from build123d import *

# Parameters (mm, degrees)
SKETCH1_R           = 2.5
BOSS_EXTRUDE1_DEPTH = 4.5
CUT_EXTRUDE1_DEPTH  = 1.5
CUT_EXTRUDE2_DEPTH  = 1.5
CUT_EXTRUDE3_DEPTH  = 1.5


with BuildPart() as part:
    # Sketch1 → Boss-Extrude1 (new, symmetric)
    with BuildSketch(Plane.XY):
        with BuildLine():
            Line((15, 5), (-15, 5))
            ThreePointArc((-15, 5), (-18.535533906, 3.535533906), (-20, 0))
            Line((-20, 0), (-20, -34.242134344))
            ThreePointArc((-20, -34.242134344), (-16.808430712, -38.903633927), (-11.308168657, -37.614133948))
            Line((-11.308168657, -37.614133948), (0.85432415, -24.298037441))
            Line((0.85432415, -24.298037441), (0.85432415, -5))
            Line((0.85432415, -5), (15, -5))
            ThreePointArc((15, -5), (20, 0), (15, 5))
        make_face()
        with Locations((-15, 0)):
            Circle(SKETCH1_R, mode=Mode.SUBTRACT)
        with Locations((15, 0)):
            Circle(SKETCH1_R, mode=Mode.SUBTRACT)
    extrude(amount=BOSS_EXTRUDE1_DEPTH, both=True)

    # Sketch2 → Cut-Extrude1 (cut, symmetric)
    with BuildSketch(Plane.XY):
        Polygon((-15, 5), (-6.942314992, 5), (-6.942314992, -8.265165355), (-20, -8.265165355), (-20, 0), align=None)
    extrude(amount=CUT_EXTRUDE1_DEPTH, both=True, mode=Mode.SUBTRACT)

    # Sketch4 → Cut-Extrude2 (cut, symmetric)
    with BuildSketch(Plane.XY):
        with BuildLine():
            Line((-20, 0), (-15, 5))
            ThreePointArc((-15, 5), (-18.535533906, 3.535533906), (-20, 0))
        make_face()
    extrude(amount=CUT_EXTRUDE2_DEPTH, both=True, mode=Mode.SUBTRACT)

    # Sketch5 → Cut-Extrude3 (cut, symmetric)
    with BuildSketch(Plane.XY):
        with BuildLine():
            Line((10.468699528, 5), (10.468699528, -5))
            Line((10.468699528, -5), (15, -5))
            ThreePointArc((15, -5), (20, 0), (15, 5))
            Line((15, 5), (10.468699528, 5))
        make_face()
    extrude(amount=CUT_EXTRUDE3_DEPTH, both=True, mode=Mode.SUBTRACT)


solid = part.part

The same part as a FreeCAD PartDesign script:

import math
import FreeCAD as App
import Part
import Sketcher
from FreeCAD import Vector
Q = App.Units.Quantity

doc = App.newDocument("Part")
body = doc.addObject("PartDesign::Body", "Body")

# Sketch on XY plane
sketch1 = body.newObject("Sketcher::SketchObject", "Sketch")
sketch1.AttachmentSupport = (doc.getObject("XY_Plane"), [""])
sketch1.MapMode = "FlatFace"
sketch1.addGeometry(Part.LineSegment(Vector(15, 5, 0), Vector(-15, 5, 0)), False)
sketch1.addGeometry(Part.ArcOfCircle(Part.Circle(Vector(-15, 0, 0), Vector(0, 0, 1), 5), math.radians(90), math.radians(180)), False)
sketch1.addGeometry(Part.LineSegment(Vector(-20, 0, 0), Vector(-20, -34.2, 0)), False)
sketch1.addGeometry(Part.ArcOfCircle(Part.Circle(Vector(-15, -34.2, 0), Vector(0, 0, 1), 5), math.radians(180), math.radians(318)), False)
sketch1.addGeometry(Part.LineSegment(Vector(-11.3, -37.6, 0), Vector(0.9, -24.3, 0)), False)
sketch1.addGeometry(Part.LineSegment(Vector(0.9, -24.3, 0), Vector(0.9, -5, 0)), False)
sketch1.addGeometry(Part.LineSegment(Vector(0.9, -5, 0), Vector(15, -5, 0)), False)
sketch1.addGeometry(Part.ArcOfCircle(Part.Circle(Vector(15, 0, 0), Vector(0, 0, 1), 5), math.radians(-90), math.radians(90)), False)
sketch1.addGeometry(Part.Circle(Vector(-15, 0, 0), Vector(0, 0, 1), 2.5), False)
sketch1.addGeometry(Part.Circle(Vector(15, 0, 0), Vector(0, 0, 1), 2.5), False)
sketch1.addConstraint(Sketcher.Constraint("Tangent", 0, 2, 1, 1))
sketch1.addConstraint(Sketcher.Constraint("Tangent", 1, 2, 2, 1))
sketch1.addConstraint(Sketcher.Constraint("Tangent", 2, 2, 3, 1))
sketch1.addConstraint(Sketcher.Constraint("Tangent", 3, 2, 4, 1))
sketch1.addConstraint(Sketcher.Constraint("Coincident", 4, 2, 5, 1))
sketch1.addConstraint(Sketcher.Constraint("Coincident", 5, 2, 6, 1))
sketch1.addConstraint(Sketcher.Constraint("Tangent", 6, 2, 7, 1))
sketch1.addConstraint(Sketcher.Constraint("Tangent", 7, 2, 0, 1))
sketch1.addConstraint(Sketcher.Constraint("Horizontal", 0))
sketch1.addConstraint(Sketcher.Constraint("Vertical", 2))
sketch1.addConstraint(Sketcher.Constraint("Vertical", 5))
sketch1.addConstraint(Sketcher.Constraint("Horizontal", 6))
sketch1.addConstraint(Sketcher.Constraint("Coincident", 8, 3, 1, 3))
sketch1.addConstraint(Sketcher.Constraint("Coincident", 9, 3, 7, 3))
sketch1.addConstraint(Sketcher.Constraint("Equal", 1, 3))
sketch1.addConstraint(Sketcher.Constraint("Equal", 3, 7))
sketch1.addConstraint(Sketcher.Constraint("Equal", 8, 9))
sketch1.addConstraint(Sketcher.Constraint("Symmetric", 1, 3, 7, 3, -1, 1))
sketch1.addConstraint(Sketcher.Constraint("Diameter", 8, 5.0))
sketch1.addConstraint(Sketcher.Constraint("Radius", 1, 5.0))
sketch1.addConstraint(Sketcher.Constraint("DistanceX", 0, 2, 0, 1, 30.0))
sketch1.addConstraint(Sketcher.Constraint("DistanceY", 3, 2, 3, 3, 3.372))
sketch1.addConstraint(Sketcher.Constraint("Distance", 4, 18.034541))
sketch1.addConstraint(Sketcher.Constraint("DistanceY", 2, 2, 2, 1, 34.242134))
pad1 = body.newObject("PartDesign::Pad", "Pad")
pad1.Profile = sketch1
pad1.Length = 9
pad1.Midplane = True

# Sketch on XY plane
sketch2 = body.newObject("Sketcher::SketchObject", "Sketch001")
sketch2.AttachmentSupport = (doc.getObject("XY_Plane"), [""])
sketch2.MapMode = "FlatFace"
sketch2.addGeometry(Part.LineSegment(Vector(-7, 5, 0), Vector(-15, 5, 0)), False)
sketch2.addGeometry(Part.LineSegment(Vector(-15, 5, 0), Vector(-20, 0, 0)), False)
sketch2.addGeometry(Part.LineSegment(Vector(-20, 0, 0), Vector(-20, -8, 0)), False)
sketch2.addGeometry(Part.LineSegment(Vector(-20, -8, 0), Vector(-7, -8, 0)), False)
sketch2.addGeometry(Part.LineSegment(Vector(-7, -8, 0), Vector(-7, 5, 0)), False)
sketch2.addConstraint(Sketcher.Constraint("Coincident", 0, 2, 1, 1))
sketch2.addConstraint(Sketcher.Constraint("Coincident", 1, 2, 2, 1))
sketch2.addConstraint(Sketcher.Constraint("Coincident", 2, 2, 3, 1))
sketch2.addConstraint(Sketcher.Constraint("Coincident", 3, 2, 4, 1))
sketch2.addConstraint(Sketcher.Constraint("Coincident", 4, 2, 0, 1))
sketch2.addConstraint(Sketcher.Constraint("Horizontal", 0))
sketch2.addConstraint(Sketcher.Constraint("Vertical", 2))
sketch2.addConstraint(Sketcher.Constraint("Horizontal", 3))
sketch2.addConstraint(Sketcher.Constraint("Vertical", 4))
sketch2.addConstraint(Sketcher.Constraint("PointOnObject", 1, 2, -1))
sketch2.addConstraint(Sketcher.Constraint("Angle", 1, Q("-135 deg")))
sketch2.addConstraint(Sketcher.Constraint("DistanceX", 0, 2, -1, 1, 15.0))
sketch2.addConstraint(Sketcher.Constraint("DistanceY", -1, 1, 0, 2, 5.0))
sketch2.addConstraint(Sketcher.Constraint("DistanceX", 0, 2, 0, 1, 8.057685))
sketch2.addConstraint(Sketcher.Constraint("DistanceY", 2, 2, 2, 1, 8.265165))
pocket1 = body.newObject("PartDesign::Pocket", "Pocket")
pocket1.Profile = sketch2
pocket1.Length = 3
pocket1.Midplane = True

# Sketch on XY plane
sketch3 = body.newObject("Sketcher::SketchObject", "Sketch002")
sketch3.AttachmentSupport = (doc.getObject("XY_Plane"), [""])
sketch3.MapMode = "FlatFace"
sketch3.addGeometry(Part.LineSegment(Vector(-20, 0, 0), Vector(-15, 5, 0)), False)
sketch3.addGeometry(Part.ArcOfCircle(Part.Circle(Vector(-15, 0, 0), Vector(0, 0, 1), 5), math.radians(90), math.radians(180)), False)
sketch3.addConstraint(Sketcher.Constraint("Coincident", 0, 1, 1, 2))
sketch3.addConstraint(Sketcher.Constraint("Coincident", 1, 1, 0, 2))
sketch3.addConstraint(Sketcher.Constraint("PointOnObject", 1, 3, -1))
sketch3.addConstraint(Sketcher.Constraint("PointOnObject", 0, 1, -1))
sketch3.addConstraint(Sketcher.Constraint("Radius", 1, 5.0))
sketch3.addConstraint(Sketcher.Constraint("Angle", 0, Q("45 deg")))
sketch3.addConstraint(Sketcher.Constraint("DistanceX", 1, 3, -1, 1, 15.0))
pocket2 = body.newObject("PartDesign::Pocket", "Pocket001")
pocket2.Profile = sketch3
pocket2.Length = 3
pocket2.Midplane = True

# Sketch on XY plane
sketch4 = body.newObject("Sketcher::SketchObject", "Sketch003")
sketch4.AttachmentSupport = (doc.getObject("XY_Plane"), [""])
sketch4.MapMode = "FlatFace"
sketch4.addGeometry(Part.LineSegment(Vector(10.5, 5, 0), Vector(10.5, -5, 0)), False)
sketch4.addGeometry(Part.LineSegment(Vector(10.5, -5, 0), Vector(15, -5, 0)), False)
sketch4.addGeometry(Part.ArcOfCircle(Part.Circle(Vector(15, 0, 0), Vector(0, 0, 1), 5), math.radians(-90), math.radians(90)), False)
sketch4.addGeometry(Part.LineSegment(Vector(15, 5, 0), Vector(10.5, 5, 0)), False)
sketch4.addConstraint(Sketcher.Constraint("Coincident", 0, 2, 1, 1))
sketch4.addConstraint(Sketcher.Constraint("Tangent", 1, 2, 2, 1))
sketch4.addConstraint(Sketcher.Constraint("Tangent", 2, 2, 3, 1))
sketch4.addConstraint(Sketcher.Constraint("Coincident", 3, 2, 0, 1))
sketch4.addConstraint(Sketcher.Constraint("Vertical", 0))
sketch4.addConstraint(Sketcher.Constraint("Horizontal", 1))
sketch4.addConstraint(Sketcher.Constraint("Horizontal", 3))
sketch4.addConstraint(Sketcher.Constraint("PointOnObject", 2, 3, -1))
sketch4.addConstraint(Sketcher.Constraint("Radius", 2, 5.0))
sketch4.addConstraint(Sketcher.Constraint("DistanceX", -1, 1, 2, 3, 15.0))
sketch4.addConstraint(Sketcher.Constraint("DistanceX", 1, 1, 1, 2, 4.5313))
pocket3 = body.newObject("PartDesign::Pocket", "Pocket002")
pocket3.Profile = sketch4
pocket3.Length = 3
pocket3.Midplane = True

doc.recompute()
